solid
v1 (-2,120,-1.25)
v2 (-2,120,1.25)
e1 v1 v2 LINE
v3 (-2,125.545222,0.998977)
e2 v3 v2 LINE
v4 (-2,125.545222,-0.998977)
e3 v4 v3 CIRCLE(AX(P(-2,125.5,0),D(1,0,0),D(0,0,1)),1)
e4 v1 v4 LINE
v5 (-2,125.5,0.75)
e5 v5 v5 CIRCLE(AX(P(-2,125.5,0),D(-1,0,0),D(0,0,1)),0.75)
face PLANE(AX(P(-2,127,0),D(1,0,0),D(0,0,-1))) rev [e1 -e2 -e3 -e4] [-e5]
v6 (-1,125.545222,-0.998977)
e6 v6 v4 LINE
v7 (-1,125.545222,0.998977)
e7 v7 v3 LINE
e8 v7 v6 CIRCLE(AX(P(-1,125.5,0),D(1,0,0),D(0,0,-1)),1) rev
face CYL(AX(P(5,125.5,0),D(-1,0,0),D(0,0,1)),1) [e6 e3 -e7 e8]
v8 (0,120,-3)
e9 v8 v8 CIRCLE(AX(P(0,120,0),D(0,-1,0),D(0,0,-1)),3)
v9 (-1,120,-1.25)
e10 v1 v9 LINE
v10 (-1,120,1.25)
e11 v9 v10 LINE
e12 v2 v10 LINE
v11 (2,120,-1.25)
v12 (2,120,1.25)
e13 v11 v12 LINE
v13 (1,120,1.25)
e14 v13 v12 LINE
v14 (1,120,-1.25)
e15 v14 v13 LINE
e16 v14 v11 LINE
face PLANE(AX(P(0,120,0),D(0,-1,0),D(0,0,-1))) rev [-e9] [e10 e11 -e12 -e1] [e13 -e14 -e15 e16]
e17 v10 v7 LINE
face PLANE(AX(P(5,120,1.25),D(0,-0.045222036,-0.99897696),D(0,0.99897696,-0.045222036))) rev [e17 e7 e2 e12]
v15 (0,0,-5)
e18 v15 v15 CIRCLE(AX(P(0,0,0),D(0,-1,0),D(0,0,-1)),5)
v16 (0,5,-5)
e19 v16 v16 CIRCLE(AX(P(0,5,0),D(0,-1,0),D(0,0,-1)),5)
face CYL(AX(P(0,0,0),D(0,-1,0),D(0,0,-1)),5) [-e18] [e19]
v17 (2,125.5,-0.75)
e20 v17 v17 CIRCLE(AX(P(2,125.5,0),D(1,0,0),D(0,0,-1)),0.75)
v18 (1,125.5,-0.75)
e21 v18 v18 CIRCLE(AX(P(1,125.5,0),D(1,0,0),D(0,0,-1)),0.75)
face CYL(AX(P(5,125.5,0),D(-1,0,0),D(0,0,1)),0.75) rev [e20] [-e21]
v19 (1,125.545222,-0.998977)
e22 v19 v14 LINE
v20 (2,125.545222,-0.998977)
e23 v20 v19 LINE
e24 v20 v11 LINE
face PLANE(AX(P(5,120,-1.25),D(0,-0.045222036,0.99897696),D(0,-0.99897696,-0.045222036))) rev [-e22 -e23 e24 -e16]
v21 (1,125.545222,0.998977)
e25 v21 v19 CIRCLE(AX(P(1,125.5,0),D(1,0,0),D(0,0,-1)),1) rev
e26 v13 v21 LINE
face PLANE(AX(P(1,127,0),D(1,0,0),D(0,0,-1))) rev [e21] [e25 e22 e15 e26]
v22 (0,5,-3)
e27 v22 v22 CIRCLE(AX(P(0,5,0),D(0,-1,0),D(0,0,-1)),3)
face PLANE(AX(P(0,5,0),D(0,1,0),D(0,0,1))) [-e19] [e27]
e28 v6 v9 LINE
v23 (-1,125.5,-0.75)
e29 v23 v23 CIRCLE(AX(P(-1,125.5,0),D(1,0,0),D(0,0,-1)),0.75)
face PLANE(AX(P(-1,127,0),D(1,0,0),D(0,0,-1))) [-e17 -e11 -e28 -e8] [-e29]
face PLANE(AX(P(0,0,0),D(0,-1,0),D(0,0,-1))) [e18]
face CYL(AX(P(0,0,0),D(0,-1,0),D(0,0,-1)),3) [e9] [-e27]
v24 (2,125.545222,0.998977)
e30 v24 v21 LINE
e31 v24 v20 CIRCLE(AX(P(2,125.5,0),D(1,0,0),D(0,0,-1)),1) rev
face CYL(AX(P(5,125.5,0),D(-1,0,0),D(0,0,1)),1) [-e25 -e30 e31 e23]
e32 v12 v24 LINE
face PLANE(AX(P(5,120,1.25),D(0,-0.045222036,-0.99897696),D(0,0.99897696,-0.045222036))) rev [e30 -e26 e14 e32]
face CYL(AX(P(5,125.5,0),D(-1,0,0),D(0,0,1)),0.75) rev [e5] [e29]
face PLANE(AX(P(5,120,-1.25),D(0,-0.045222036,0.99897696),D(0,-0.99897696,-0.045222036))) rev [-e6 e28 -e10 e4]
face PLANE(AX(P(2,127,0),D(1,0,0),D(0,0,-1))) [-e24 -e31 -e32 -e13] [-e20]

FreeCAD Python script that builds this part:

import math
import FreeCAD as App
import Part
import Sketcher

V = App.Vector


def add_polygon(sketch, points):
    """Adds a closed chain of lines whose ends are joined by coincident constraints."""
    first, n = sketch.GeometryCount, len(points)
    for a, b in zip(points, points[1:] + points[:1]):
        sketch.addGeometry(Part.LineSegment(App.Vector(*a, 0), App.Vector(*b, 0)), False)
    for i in range(n):
        sketch.addConstraint(Sketcher.Constraint("Coincident", first + i, 2, first + (i + 1) % n, 1))

doc = App.newDocument("Part")
body = doc.addObject("PartDesign::Body", "Body")

# Sketch on XY plane
sketch1 = body.newObject("Sketcher::SketchObject", "Sketch")
sketch1.AttachmentSupport = (doc.getObject("XY_Plane"), [""])
sketch1.MapMode = "FlatFace"
add_polygon(sketch1, [(0, 0), (5, 0), (5, 5), (3, 5), (3, 120), (0, 120)])  # lines 0-5
sketch1.addConstraint([
    Sketcher.Constraint("Horizontal", 0),
    Sketcher.Constraint("Vertical", 1),
    Sketcher.Constraint("Horizontal", 2),
    Sketcher.Constraint("Vertical", 3),
    Sketcher.Constraint("Horizontal", 4),
    Sketcher.Constraint("Vertical", 5),
    Sketcher.Constraint("Coincident", 5, 2, -1, 1),
    Sketcher.Constraint("Equal", 0, 1),
    Sketcher.Constraint("DistanceX", 0, 1, 0, 2, 5.0),
    Sketcher.Constraint("DistanceX", 2, 2, 2, 1, 2.0),
    Sketcher.Constraint("DistanceY", 3, 1, 3, 2, 115.0),
])
revolution = body.newObject("PartDesign::Revolution", "Revolution")
revolution.Profile = sketch1
revolution.ReferenceAxis = (sketch1, ["V_Axis"])
revolution.Angle = 360

# Sketch on XZ plane
sketch2 = body.newObject("Sketcher::SketchObject", "Sketch001")
sketch2.AttachmentSupport = (doc.getObject("XZ_Plane"), [""])
sketch2.MapMode = "FlatFace"
sketch2.AttachmentOffset = App.Placement(V(0, 0, -120), App.Rotation())
add_polygon(sketch2, [(-2, -1.2), (-2, 1.2), (-1, 1.2), (-1, -1.2)])  # lines 0-3
add_polygon(sketch2, [(1, -1.2), (1, 1.2), (2, 1.2), (2, -1.2)])  # lines 4-7
sketch2.addConstraint([
    Sketcher.Constraint("Vertical", 0),
    Sketcher.Constraint("Horizontal", 1),
    Sketcher.Constraint("Vertical", 2),
    Sketcher.Constraint("Horizontal", 3),
    Sketcher.Constraint("Vertical", 4),
    Sketcher.Constraint("Horizontal", 5),
    Sketcher.Constraint("Vertical", 6),
    Sketcher.Constraint("Horizontal", 7),
    Sketcher.Constraint("Symmetric", 2, 2, 4, 2, -1, 1),
    Sketcher.Constraint("Symmetric", 0, 2, 6, 2, -1, 1),
    Sketcher.Constraint("Horizontal", 1, 2, 4, 2),
    Sketcher.Constraint("DistanceX", 1, 1, 1, 2, 1.0),
    Sketcher.Constraint("DistanceY", 0, 1, 0, 2, 2.5),
    Sketcher.Constraint("DistanceX", 0, 2, -1, 1, 2.0),
])
pad1 = body.newObject("PartDesign::Pad", "Pad")
pad1.Profile = sketch2
pad1.Length = 7
pad1.Reversed = True

# Sketch on YZ plane
sketch3 = body.newObject("Sketcher::SketchObject", "Sketch002")
sketch3.AttachmentSupport = (doc.getObject("YZ_Plane"), [""])
sketch3.MapMode = "FlatFace"
sketch3.AttachmentOffset = App.Placement(V(0, 0, -2), App.Rotation())
sketch3.addGeometry([
    Part.Circle(V(125.5, 0, 0), V(0, 0, 1), 0.8),  # 0
    Part.LineSegment(V(125.5, 1, 0), V(120, 1.2, 0)),  # 1
    Part.LineSegment(V(120, 1.2, 0), V(127, 1.2, 0)),  # 2
    Part.LineSegment(V(127, 1.2, 0), V(127, -1.2, 0)),  # 3
    Part.LineSegment(V(127, -1.2, 0), V(120, -1.2, 0)),  # 4
    Part.LineSegment(V(120, -1.2, 0), V(125.5, -1, 0)),  # 5
    Part.ArcOfCircle(Part.Circle(V(125.5, 0, 0), V(0, 0, 1), 1), math.radians(-87), math.radians(87)),  # 6
], False)
sketch3.addConstraint([
    Sketcher.Constraint("Coincident", 1, 2, 2, 1),
    Sketcher.Constraint("Coincident", 2, 2, 3, 1),
    Sketcher.Constraint("Coincident", 3, 2, 4, 1),
    Sketcher.Constraint("Coincident", 4, 2, 5, 1),
    Sketcher.Constraint("Tangent", 5, 2, 6, 1),
    Sketcher.Constraint("Tangent", 6, 2, 1, 1),
    Sketcher.Constraint("Horizontal", 2),
    Sketcher.Constraint("Vertical", 3),
    Sketcher.Constraint("Horizontal", 4),
    Sketcher.Constraint("Coincident", 6, 3, 0, 3),
    Sketcher.Constraint("Symmetric", 1, 2, 4, 2, -1),
    Sketcher.Constraint("PointOnObject", 0, 3, -1),
    Sketcher.Constraint("Radius", 6, 1.0),
    Sketcher.Constraint("Diameter", 0, 1.5),
    Sketcher.Constraint("DistanceX", 2, 1, 2, 2, 7.0),
    Sketcher.Constraint("DistanceY", 3, 2, 3, 1, 2.5),
    Sketcher.Constraint("DistanceX", -1, 1, 1, 2, 120.0),
    Sketcher.Constraint("DistanceX", -1, 1, 0, 3, 125.5),
])
pocket1 = body.newObject("PartDesign::Pocket", "Pocket")
pocket1.Profile = sketch3
pocket1.Length = 7
pocket1.Reversed = True

doc.recompute()
